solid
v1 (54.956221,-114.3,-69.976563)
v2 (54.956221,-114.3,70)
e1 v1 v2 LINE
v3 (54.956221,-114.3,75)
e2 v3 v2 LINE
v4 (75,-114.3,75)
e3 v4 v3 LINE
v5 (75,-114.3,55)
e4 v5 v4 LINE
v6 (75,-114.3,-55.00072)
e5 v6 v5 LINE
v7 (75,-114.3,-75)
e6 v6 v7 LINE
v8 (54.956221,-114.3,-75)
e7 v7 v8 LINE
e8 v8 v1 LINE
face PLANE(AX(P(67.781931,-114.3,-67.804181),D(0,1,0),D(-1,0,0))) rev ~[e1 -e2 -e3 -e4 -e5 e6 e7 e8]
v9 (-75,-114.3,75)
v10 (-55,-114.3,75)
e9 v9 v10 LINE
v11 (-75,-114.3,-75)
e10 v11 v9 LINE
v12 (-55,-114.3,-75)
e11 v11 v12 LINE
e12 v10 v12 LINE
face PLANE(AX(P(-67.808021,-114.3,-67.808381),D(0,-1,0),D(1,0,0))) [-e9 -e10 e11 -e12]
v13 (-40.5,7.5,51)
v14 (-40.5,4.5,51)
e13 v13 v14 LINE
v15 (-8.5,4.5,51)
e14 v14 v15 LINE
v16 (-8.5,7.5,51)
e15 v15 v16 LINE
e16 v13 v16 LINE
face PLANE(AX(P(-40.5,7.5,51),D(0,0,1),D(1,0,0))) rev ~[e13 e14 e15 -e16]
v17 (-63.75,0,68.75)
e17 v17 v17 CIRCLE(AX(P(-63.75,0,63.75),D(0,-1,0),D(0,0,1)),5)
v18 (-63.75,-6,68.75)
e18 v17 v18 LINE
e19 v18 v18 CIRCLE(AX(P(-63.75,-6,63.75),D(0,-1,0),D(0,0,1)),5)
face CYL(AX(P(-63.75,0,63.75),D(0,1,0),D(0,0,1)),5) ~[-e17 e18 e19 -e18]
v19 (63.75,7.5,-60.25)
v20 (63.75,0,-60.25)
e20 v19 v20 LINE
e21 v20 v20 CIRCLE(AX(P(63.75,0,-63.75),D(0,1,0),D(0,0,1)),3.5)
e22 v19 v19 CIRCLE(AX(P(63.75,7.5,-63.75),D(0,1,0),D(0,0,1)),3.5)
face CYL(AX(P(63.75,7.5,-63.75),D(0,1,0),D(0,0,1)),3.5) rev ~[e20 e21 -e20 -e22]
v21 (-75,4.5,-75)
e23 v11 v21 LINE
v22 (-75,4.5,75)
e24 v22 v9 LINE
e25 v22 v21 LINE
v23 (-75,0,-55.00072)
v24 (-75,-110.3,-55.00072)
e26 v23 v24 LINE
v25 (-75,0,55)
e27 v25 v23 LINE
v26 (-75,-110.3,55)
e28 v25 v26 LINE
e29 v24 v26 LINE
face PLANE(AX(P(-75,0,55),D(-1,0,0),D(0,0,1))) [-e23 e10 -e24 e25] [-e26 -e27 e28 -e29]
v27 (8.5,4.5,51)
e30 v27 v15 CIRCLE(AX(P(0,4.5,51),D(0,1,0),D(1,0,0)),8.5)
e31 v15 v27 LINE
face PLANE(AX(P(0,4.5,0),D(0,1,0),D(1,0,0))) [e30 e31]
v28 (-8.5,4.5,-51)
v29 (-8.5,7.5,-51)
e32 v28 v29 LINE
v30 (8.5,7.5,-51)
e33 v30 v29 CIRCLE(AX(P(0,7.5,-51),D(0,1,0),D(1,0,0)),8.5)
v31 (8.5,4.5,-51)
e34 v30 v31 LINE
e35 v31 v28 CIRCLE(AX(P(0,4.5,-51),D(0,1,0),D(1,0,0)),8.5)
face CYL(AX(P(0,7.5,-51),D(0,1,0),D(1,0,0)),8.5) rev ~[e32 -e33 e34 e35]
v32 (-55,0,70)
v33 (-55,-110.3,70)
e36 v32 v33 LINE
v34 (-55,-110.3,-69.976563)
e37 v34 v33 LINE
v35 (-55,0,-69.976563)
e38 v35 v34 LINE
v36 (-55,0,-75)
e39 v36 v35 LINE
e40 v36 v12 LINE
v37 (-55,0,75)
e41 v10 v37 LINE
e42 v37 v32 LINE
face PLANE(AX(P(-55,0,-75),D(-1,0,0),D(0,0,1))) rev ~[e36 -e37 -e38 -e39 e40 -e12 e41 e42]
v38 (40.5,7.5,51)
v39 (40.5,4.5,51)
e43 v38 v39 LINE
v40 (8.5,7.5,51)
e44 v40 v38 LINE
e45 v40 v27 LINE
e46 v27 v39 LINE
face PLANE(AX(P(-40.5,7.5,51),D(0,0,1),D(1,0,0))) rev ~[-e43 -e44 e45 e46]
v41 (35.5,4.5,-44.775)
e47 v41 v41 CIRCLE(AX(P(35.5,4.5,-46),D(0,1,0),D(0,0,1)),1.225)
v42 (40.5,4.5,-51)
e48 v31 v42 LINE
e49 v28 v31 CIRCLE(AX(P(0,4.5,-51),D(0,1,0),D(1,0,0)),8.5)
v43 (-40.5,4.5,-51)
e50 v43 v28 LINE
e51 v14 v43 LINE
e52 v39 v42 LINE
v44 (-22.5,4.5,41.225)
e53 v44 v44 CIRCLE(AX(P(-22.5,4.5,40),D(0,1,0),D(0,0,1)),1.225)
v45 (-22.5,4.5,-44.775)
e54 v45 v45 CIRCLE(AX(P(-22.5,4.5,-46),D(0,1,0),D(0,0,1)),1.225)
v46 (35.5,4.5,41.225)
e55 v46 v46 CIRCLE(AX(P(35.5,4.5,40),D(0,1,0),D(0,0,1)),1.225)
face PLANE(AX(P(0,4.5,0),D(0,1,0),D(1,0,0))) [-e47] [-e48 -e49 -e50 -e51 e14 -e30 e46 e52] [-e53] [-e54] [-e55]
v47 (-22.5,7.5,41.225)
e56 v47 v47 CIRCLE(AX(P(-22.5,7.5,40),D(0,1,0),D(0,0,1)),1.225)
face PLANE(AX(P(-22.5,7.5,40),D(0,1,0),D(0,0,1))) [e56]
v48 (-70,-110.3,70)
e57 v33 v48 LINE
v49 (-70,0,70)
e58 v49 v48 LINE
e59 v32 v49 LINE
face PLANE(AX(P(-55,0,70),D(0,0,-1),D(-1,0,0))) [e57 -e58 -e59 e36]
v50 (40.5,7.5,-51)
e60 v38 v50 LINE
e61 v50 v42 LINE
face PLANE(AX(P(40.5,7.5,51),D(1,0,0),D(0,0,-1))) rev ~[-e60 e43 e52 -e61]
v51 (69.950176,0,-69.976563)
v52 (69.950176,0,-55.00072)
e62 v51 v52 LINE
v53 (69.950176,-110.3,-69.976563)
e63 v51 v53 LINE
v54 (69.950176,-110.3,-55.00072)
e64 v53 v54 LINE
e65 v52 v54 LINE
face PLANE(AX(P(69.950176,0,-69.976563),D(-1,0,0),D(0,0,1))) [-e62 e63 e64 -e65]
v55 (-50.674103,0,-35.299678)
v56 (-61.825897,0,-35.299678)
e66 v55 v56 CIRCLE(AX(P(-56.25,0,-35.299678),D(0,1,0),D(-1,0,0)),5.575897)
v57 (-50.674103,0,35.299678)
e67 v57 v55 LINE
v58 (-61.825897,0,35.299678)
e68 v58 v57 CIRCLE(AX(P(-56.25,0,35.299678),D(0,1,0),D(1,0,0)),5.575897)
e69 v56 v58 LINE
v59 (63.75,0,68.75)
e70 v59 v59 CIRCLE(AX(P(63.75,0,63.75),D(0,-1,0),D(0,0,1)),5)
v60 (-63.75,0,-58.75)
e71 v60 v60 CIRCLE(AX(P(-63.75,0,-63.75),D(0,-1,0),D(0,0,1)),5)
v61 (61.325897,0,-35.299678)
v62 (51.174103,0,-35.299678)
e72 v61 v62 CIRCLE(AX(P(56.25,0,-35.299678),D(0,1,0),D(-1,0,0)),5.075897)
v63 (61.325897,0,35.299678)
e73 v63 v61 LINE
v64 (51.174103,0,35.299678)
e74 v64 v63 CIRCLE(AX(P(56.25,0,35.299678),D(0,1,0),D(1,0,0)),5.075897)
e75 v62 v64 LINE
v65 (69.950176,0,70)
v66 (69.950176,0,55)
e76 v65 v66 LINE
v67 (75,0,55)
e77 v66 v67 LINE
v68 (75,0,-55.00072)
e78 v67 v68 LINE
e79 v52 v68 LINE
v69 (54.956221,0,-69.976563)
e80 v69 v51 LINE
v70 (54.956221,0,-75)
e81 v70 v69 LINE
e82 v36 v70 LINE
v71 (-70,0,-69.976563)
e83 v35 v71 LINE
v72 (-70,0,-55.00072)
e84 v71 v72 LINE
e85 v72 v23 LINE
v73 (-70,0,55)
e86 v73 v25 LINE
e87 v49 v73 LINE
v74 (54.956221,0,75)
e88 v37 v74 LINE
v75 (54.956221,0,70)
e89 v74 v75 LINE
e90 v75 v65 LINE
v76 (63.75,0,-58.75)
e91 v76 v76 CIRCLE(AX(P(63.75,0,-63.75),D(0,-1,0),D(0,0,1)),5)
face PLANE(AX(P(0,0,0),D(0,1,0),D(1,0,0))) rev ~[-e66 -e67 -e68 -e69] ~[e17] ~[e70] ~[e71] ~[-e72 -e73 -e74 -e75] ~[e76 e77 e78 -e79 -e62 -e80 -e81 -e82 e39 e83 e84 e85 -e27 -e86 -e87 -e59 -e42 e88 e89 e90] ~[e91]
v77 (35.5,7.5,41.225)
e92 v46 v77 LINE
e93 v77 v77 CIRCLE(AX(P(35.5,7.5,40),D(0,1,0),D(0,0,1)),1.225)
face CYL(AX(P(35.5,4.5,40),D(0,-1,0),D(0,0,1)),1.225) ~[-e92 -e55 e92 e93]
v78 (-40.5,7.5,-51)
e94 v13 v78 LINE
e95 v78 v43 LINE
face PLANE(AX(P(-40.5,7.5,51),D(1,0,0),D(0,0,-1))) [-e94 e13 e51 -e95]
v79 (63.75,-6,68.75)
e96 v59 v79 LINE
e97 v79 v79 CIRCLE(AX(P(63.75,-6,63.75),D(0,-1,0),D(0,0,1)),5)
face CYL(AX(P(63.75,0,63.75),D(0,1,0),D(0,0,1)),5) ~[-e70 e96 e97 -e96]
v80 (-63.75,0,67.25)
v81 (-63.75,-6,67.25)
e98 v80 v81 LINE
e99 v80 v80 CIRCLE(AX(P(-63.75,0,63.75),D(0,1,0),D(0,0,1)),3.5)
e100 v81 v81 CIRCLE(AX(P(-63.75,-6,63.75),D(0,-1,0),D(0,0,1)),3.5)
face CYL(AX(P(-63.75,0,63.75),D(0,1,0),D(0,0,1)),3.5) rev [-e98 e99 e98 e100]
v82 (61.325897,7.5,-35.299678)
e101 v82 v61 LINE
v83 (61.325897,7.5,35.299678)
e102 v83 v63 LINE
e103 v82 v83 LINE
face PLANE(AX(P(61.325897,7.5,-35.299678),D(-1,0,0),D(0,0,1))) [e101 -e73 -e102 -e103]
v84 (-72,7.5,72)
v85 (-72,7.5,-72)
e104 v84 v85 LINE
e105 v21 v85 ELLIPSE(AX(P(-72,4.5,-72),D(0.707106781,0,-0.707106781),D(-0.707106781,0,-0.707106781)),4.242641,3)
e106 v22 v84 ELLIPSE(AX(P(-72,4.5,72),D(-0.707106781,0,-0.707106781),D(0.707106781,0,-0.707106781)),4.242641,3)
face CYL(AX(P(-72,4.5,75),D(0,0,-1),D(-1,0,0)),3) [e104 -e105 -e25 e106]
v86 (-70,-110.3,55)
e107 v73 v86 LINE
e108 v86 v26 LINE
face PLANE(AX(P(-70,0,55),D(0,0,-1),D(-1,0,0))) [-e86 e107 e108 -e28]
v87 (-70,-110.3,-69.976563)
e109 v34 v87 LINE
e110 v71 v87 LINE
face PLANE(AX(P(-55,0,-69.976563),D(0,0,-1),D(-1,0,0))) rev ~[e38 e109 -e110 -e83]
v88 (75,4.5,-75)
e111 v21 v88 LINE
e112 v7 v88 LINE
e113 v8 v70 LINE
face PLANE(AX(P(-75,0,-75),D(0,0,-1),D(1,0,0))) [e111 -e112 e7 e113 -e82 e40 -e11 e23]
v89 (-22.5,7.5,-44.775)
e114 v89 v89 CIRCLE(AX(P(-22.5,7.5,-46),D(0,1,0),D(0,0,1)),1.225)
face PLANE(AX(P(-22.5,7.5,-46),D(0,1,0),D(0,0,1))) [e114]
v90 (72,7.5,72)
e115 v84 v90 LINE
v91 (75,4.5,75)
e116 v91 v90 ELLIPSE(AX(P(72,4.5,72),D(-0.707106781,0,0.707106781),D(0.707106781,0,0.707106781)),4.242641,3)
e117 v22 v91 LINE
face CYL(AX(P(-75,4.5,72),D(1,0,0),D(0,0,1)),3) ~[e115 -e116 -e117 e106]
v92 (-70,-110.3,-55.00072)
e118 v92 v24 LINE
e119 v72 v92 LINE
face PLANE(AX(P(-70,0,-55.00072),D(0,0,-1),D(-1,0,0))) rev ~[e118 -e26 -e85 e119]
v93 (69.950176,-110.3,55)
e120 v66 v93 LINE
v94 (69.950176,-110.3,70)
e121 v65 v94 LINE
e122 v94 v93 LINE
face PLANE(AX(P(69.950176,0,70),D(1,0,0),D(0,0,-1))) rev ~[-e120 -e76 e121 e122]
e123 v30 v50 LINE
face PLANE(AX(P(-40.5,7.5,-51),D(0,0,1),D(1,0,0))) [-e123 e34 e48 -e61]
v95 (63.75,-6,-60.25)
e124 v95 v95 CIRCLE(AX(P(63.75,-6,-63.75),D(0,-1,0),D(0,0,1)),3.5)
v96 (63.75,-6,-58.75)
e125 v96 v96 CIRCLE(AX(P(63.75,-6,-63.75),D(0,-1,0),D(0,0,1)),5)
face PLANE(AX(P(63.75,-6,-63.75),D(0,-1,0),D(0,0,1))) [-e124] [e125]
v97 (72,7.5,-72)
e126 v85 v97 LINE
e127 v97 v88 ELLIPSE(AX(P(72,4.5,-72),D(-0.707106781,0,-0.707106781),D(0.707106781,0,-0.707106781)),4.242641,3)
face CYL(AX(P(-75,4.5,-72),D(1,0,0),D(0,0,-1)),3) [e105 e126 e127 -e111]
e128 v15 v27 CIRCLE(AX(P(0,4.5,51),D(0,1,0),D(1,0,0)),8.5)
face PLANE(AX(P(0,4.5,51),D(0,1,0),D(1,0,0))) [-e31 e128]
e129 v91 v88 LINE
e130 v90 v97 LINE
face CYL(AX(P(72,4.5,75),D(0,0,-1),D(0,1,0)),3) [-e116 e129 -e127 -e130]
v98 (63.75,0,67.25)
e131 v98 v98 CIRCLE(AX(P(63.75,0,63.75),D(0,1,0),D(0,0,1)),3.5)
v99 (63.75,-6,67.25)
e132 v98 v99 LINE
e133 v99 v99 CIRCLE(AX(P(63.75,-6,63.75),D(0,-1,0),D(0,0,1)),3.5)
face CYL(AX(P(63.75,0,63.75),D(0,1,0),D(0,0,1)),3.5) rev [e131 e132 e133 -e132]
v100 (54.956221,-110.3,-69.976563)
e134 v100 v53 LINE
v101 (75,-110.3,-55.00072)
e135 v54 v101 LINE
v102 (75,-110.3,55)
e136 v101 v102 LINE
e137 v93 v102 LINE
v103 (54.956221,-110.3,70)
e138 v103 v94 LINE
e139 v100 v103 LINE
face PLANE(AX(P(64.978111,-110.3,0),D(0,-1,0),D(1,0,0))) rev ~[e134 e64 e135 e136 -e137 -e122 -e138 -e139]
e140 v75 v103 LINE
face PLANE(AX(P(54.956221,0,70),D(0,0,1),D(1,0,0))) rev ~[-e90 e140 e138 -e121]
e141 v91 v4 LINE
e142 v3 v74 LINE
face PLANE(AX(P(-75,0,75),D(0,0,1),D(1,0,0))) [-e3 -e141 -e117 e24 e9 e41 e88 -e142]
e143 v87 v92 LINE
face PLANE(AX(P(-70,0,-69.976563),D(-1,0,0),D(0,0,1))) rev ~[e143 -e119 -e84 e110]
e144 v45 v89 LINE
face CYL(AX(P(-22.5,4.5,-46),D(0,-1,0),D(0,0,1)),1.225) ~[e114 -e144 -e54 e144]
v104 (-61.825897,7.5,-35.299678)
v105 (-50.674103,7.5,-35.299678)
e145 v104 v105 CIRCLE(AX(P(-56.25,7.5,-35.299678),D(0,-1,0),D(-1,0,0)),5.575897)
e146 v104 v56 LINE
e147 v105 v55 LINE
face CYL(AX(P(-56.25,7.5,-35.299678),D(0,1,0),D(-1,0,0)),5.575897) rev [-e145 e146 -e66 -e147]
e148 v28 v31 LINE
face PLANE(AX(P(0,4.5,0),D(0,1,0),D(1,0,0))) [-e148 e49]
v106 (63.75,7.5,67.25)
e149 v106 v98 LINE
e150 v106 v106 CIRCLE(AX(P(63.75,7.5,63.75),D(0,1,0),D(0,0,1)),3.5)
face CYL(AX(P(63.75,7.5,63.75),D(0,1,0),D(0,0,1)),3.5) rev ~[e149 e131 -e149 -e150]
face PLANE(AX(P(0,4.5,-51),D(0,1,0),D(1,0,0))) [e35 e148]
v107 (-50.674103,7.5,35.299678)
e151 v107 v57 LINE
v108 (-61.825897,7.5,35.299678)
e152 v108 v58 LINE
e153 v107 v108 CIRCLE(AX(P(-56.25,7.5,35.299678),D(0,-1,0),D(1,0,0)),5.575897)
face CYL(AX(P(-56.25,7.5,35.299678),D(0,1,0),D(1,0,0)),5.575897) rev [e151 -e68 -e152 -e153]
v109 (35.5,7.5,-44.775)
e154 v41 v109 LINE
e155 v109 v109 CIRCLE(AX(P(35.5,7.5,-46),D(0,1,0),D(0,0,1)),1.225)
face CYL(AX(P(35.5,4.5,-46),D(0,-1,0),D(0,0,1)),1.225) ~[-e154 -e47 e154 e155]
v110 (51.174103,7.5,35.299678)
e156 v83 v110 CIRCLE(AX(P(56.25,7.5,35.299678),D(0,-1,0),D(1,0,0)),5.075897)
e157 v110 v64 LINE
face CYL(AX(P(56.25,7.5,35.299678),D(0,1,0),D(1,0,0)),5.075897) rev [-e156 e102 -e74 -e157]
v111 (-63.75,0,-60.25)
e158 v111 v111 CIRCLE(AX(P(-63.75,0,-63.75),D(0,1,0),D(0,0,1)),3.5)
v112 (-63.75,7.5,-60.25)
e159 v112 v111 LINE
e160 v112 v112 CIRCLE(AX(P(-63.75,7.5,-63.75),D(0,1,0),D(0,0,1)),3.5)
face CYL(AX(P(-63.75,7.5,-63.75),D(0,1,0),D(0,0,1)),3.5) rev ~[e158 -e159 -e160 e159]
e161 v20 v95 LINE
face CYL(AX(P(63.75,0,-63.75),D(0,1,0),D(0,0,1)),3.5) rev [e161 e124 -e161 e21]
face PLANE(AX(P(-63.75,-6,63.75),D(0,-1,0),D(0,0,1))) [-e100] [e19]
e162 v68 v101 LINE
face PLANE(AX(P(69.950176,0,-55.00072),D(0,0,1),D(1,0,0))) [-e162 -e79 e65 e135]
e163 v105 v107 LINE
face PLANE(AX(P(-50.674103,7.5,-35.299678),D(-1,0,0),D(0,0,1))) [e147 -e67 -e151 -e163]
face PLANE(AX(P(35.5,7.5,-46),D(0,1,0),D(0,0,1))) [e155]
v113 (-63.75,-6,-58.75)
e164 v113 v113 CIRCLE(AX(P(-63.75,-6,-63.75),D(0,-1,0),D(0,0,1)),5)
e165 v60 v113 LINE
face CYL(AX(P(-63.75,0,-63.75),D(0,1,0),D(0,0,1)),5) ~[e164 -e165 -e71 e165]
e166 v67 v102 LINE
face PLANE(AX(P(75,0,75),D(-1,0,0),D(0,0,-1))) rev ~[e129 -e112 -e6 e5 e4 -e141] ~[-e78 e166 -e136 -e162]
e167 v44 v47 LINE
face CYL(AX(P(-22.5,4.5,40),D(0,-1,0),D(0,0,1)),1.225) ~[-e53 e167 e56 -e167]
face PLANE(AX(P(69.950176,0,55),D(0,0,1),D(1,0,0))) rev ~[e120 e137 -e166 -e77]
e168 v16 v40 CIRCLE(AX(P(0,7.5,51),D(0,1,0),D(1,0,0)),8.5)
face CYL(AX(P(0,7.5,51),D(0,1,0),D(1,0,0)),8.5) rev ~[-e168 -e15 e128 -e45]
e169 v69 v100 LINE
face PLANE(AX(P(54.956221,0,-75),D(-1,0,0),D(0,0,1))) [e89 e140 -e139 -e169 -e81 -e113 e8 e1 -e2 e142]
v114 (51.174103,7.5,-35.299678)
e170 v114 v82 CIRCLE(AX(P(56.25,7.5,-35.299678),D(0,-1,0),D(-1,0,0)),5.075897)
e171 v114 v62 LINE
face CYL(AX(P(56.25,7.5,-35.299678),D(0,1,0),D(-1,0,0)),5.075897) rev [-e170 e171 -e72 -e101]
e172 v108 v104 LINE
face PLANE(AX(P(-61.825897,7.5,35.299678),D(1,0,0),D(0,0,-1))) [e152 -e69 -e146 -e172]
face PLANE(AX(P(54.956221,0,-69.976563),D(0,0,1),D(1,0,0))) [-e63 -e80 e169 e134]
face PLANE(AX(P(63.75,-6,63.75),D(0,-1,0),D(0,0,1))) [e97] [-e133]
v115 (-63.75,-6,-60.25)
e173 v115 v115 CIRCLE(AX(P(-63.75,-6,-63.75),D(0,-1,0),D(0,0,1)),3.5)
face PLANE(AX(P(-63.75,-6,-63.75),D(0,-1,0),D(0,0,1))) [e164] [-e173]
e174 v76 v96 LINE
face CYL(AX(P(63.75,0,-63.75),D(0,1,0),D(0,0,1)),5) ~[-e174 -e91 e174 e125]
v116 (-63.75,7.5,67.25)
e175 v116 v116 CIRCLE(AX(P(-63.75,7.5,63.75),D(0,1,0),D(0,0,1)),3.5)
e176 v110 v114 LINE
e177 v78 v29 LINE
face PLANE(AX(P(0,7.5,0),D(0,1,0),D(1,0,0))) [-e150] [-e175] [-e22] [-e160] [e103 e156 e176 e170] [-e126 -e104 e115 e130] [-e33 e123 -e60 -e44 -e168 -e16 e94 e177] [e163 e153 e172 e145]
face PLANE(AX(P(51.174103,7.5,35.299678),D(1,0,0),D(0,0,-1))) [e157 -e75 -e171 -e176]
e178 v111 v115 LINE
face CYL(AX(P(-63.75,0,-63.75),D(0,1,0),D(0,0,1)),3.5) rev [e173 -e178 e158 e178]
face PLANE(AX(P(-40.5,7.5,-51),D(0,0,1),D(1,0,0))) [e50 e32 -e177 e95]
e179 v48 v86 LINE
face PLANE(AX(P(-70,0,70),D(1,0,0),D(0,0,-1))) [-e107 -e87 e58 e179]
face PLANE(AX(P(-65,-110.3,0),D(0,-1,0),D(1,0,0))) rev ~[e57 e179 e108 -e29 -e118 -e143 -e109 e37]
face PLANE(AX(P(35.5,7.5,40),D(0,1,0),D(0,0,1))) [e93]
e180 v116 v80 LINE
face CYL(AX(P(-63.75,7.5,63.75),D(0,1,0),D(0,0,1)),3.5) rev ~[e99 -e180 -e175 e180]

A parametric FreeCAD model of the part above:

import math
import FreeCAD as App
import Part
import Sketcher


def edges_at(feature, points):
    """Names of the edges that pass closest to the given points."""
    edges = feature.Shape.Edges
    near = lambda p: min(range(len(edges)), key=lambda i: edges[i].distToShape(Part.Vertex(*p))[0])
    return sorted({f"Edge{near(p) + 1}" for p in points})

doc = App.newDocument("Part")
body = doc.addObject("PartDesign::Body", "Body")

# Sketch on XZ plane
sketch1 = body.newObject("Sketcher::SketchObject", "Sketch")
sketch1.AttachmentSupport = (doc.getObject("XZ_Plane"), [""])
sketch1.MapMode = "FlatFace"
sketch1.addGeometry(Part.LineSegment(App.Vector(-75, -75, 0), App.Vector(-75, 75, 0)), False)
sketch1.addGeometry(Part.LineSegment(App.Vector(-75, 75, 0), App.Vector(75, 75, 0)), False)
sketch1.addGeometry(Part.LineSegment(App.Vector(75, 75, 0), App.Vector(75, -75, 0)), False)
sketch1.addGeometry(Part.LineSegment(App.Vector(75, -75, 0), App.Vector(-75, -75, 0)), False)
sketch1.addConstraint(Sketcher.Constraint("Coincident", 0, 2, 1, 1))
sketch1.addConstraint(Sketcher.Constraint("Coincident", 1, 2, 2, 1))
sketch1.addConstraint(Sketcher.Constraint("Coincident", 2, 2, 3, 1))
sketch1.addConstraint(Sketcher.Constraint("Coincident", 3, 2, 0, 1))
sketch1.addConstraint(Sketcher.Constraint("Vertical", 0))
sketch1.addConstraint(Sketcher.Constraint("Horizontal", 1))
sketch1.addConstraint(Sketcher.Constraint("Vertical", 2))
sketch1.addConstraint(Sketcher.Constraint("Horizontal", 3))
sketch1.addConstraint(Sketcher.Constraint("Symmetric", 0, 2, 2, 2, -1, 1))
sketch1.addConstraint(Sketcher.Constraint("Equal", 3, 0))
sketch1.addConstraint(Sketcher.Constraint("DistanceX", 1, 1, 1, 2, 150.0))
pad1 = body.newObject("PartDesign::Pad", "Pad")
pad1.Profile = sketch1
pad1.Length = 7.5
pad1.Reversed = True

# Sketch on XZ plane
sketch2 = body.newObject("Sketcher::SketchObject", "Sketch001")
sketch2.AttachmentSupport = (doc.getObject("XZ_Plane"), [""])
sketch2.MapMode = "FlatFace"
sketch2.addGeometry(Part.LineSegment(App.Vector(-55, 75, 0), App.Vector(-75, 75, 0)), False)
sketch2.addGeometry(Part.LineSegment(App.Vector(-75, 75, 0), App.Vector(-75, 55, 0)), False)
sketch2.addGeometry(Part.LineSegment(App.Vector(-75, 55, 0), App.Vector(-70, 55, 0)), False)
sketch2.addGeometry(Part.LineSegment(App.Vector(-70, 55, 0), App.Vector(-70, 70, 0)), False)
sketch2.addGeometry(Part.LineSegment(App.Vector(-70, 70, 0), App.Vector(-55, 70, 0)), False)
sketch2.addGeometry(Part.LineSegment(App.Vector(-55, 70, 0), App.Vector(-55, 75, 0)), False)
sketch2.addGeometry(Part.LineSegment(App.Vector(75, 75, 0), App.Vector(54.956221, 75, 0)), False)
sketch2.addGeometry(Part.LineSegment(App.Vector(54.956221, 75, 0), App.Vector(54.956221, 70, 0)), False)
sketch2.addGeometry(Part.LineSegment(App.Vector(54.956221, 70, 0), App.Vector(69.950176, 70, 0)), False)
sketch2.addGeometry(Part.LineSegment(App.Vector(69.950176, 70, 0), App.Vector(69.950176, 55, 0)), False)
sketch2.addGeometry(Part.LineSegment(App.Vector(69.950176, 55, 0), App.Vector(75, 55, 0)), False)
sketch2.addGeometry(Part.LineSegment(App.Vector(75, 55, 0), App.Vector(75, 75, 0)), False)
sketch2.addGeometry(Part.LineSegment(App.Vector(-75, -75, 0), App.Vector(-55, -75, 0)), False)
sketch2.addGeometry(Part.LineSegment(App.Vector(-55, -75, 0), App.Vector(-55, -69.976563, 0)), False)
sketch2.addGeometry(Part.LineSegment(App.Vector(-55, -69.976563, 0), App.Vector(-70, -69.976563, 0)), False)
sketch2.addGeometry(Part.LineSegment(App.Vector(-70, -69.976563, 0), App.Vector(-70, -55.00072, 0)), False)
sketch2.addGeometry(Part.LineSegment(App.Vector(-70, -55.00072, 0), App.Vector(-75, -55.00072, 0)), False)
sketch2.addGeometry(Part.LineSegment(App.Vector(-75, -55.00072, 0), App.Vector(-75, -75, 0)), False)
sketch2.addGeometry(Part.LineSegment(App.Vector(54.956221, -75, 0), App.Vector(75, -75, 0)), False)
sketch2.addGeometry(Part.LineSegment(App.Vector(75, -75, 0), App.Vector(75, -55.00072, 0)), False)
sketch2.addGeometry(Part.LineSegment(App.Vector(75, -55.00072, 0), App.Vector(69.950176, -55.00072, 0)), False)
sketch2.addGeometry(Part.LineSegment(App.Vector(69.950176, -55.00072, 0), App.Vector(69.950176, -69.976563, 0)), False)
sketch2.addGeometry(Part.LineSegment(App.Vector(69.950176, -69.976563, 0), App.Vector(54.956221, -69.976563, 0)), False)
sketch2.addGeometry(Part.LineSegment(App.Vector(54.956221, -69.976563, 0), App.Vector(54.956221, -75, 0)), False)
sketch2.addConstraint(Sketcher.Constraint("Coincident", 0, 2, 1, 1))
sketch2.addConstraint(Sketcher.Constraint("Coincident", 1, 2, 2, 1))
sketch2.addConstraint(Sketcher.Constraint("Coincident", 2, 2, 3, 1))
sketch2.addConstraint(Sketcher.Constraint("Coincident", 3, 2, 4, 1))
sketch2.addConstraint(Sketcher.Constraint("Coincident", 4, 2, 5, 1))
sketch2.addConstraint(Sketcher.Constraint("Coincident", 5, 2, 0, 1))
sketch2.addConstraint(Sketcher.Constraint("Coincident", 6, 2, 7, 1))
sketch2.addConstraint(Sketcher.Constraint("Coincident", 7, 2, 8, 1))
sketch2.addConstraint(Sketcher.Constraint("Coincident", 8, 2, 9, 1))
sketch2.addConstraint(Sketcher.Constraint("Coincident", 9, 2, 10, 1))
sketch2.addConstraint(Sketcher.Constraint("Coincident", 10, 2, 11, 1))
sketch2.addConstraint(Sketcher.Constraint("Coincident", 11, 2, 6, 1))
sketch2.addConstraint(Sketcher.Constraint("Coincident", 12, 2, 13, 1))
sketch2.addConstraint(Sketcher.Constraint("Coincident", 13, 2, 14, 1))
sketch2.addConstraint(Sketcher.Constraint("Coincident", 14, 2, 15, 1))
sketch2.addConstraint(Sketcher.Constraint("Coincident", 15, 2, 16, 1))
sketch2.addConstraint(Sketcher.Constraint("Coincident", 16, 2, 17, 1))
sketch2.addConstraint(Sketcher.Constraint("Coincident", 17, 2, 12, 1))
sketch2.addConstraint(Sketcher.Constraint("Coincident", 18, 2, 19, 1))
sketch2.addConstraint(Sketcher.Constraint("Coincident", 19, 2, 20, 1))
sketch2.addConstraint(Sketcher.Constraint("Coincident", 20, 2, 21, 1))
sketch2.addConstraint(Sketcher.Constraint("Coincident", 21, 2, 22, 1))
sketch2.addConstraint(Sketcher.Constraint("Coincident", 22, 2, 23, 1))
sketch2.addConstraint(Sketcher.Constraint("Coincident", 23, 2, 18, 1))
sketch2.addConstraint(Sketcher.Constraint("Horizontal", 0))
sketch2.addConstraint(Sketcher.Constraint("Vertical", 1))
sketch2.addConstraint(Sketcher.Constraint("Horizontal", 2))
sketch2.addConstraint(Sketcher.Constraint("Vertical", 3))
sketch2.addConstraint(Sketcher.Constraint("Horizontal", 4))
sketch2.addConstraint(Sketcher.Constraint("Vertical", 5))
sketch2.addConstraint(Sketcher.Constraint("Horizontal", 6))
sketch2.addConstraint(Sketcher.Constraint("Vertical", 7))
sketch2.addConstraint(Sketcher.Constraint("Horizontal", 8))
sketch2.addConstraint(Sketcher.Constraint("Vertical", 9))
sketch2.addConstraint(Sketcher.Constraint("Horizontal", 10))
sketch2.addConstraint(Sketcher.Constraint("Vertical", 11))
sketch2.addConstraint(Sketcher.Constraint("Horizontal", 12))
sketch2.addConstraint(Sketcher.Constraint("Vertical", 13))
sketch2.addConstraint(Sketcher.Constraint("Horizontal", 14))
sketch2.addConstraint(Sketcher.Constraint("Vertical", 15))
sketch2.addConstraint(Sketcher.Constraint("Horizontal", 16))
sketch2.addConstraint(Sketcher.Constraint("Vertical", 17))
sketch2.addConstraint(Sketcher.Constraint("Horizontal", 18))
sketch2.addConstraint(Sketcher.Constraint("Vertical", 19))
sketch2.addConstraint(Sketcher.Constraint("Horizontal", 20))
sketch2.addConstraint(Sketcher.Constraint("Vertical", 21))
sketch2.addConstraint(Sketcher.Constraint("Horizontal", 22))
sketch2.addConstraint(Sketcher.Constraint("Vertical", 23))
sketch2.addConstraint(Sketcher.Constraint("Symmetric", 11, 2, 17, 2, -1, 1))
sketch2.addConstraint(Sketcher.Constraint("Symmetric", 0, 2, 18, 2, -1, 1))
sketch2.addConstraint(Sketcher.Constraint("Symmetric", 1, 2, 10, 2, -2))
sketch2.addConstraint(Sketcher.Constraint("Symmetric", 5, 2, 12, 2, -1))
sketch2.addConstraint(Sketcher.Constraint("Horizontal", 4, 2, 7, 2))
sketch2.addConstraint(Sketcher.Constraint("Horizontal", 16, 2, 19, 2))
sketch2.addConstraint(Sketcher.Constraint("Horizontal", 14, 2, 21, 2))
sketch2.addConstraint(Sketcher.Constraint("Vertical", 3, 2, 14, 2))
sketch2.addConstraint(Sketcher.Constraint("Vertical", 9, 2, 20, 2))
sketch2.addConstraint(Sketcher.Constraint("Vertical", 7, 2, 22, 2))
sketch2.addConstraint(Sketcher.Constraint("Equal", 12, 1))
sketch2.addConstraint(Sketcher.Constraint("Equal", 14, 3))
sketch2.addConstraint(Sketcher.Constraint("DistanceX", 0, 2, 0, 1, 20.0))
sketch2.addConstraint(Sketcher.Constraint("DistanceX", 2, 1, 2, 2, 5.0))
sketch2.addConstraint(Sketcher.Constraint("DistanceX", 0, 2, -1, 1, 75.0))
sketch2.addConstraint(Sketcher.Constraint("DistanceY", -1, 1, 0, 2, 75.0))
sketch2.addConstraint(Sketcher.Constraint("DistanceX", 6, 2, 6, 1, 20.043779))
sketch2.addConstraint(Sketcher.Constraint("DistanceY", 17, 2, 17, 1, 19.99928))
sketch2.addConstraint(Sketcher.Constraint("DistanceX", 8, 1, 8, 2, 14.993954))
sketch2.addConstraint(Sketcher.Constraint("DistanceY", 13, 1, 13, 2, 5.023437))
pad2 = body.newObject("PartDesign::Pad", "Pad001")
pad2.Profile = sketch2
pad2.Length = 114.3
doc.recompute()

fillet = body.newObject("PartDesign::Fillet", "Fillet")
fillet.Base = (pad2, edges_at(pad2, [
    (-75, 7.5, 0),
    (0, 7.5, 75),
    (75, 7.5, 0),
    (0, 7.5, -75),
]))
fillet.Radius = 3

# Sketch on XZ plane
sketch3 = body.newObject("Sketcher::SketchObject", "Sketch002")
sketch3.AttachmentSupport = (doc.getObject("XZ_Plane"), [""])
sketch3.MapMode = "FlatFace"
sketch3.AttachmentOffset = App.Placement(App.Vector(0, 0, 114.3), App.Rotation())
sketch3.addGeometry(Part.LineSegment(App.Vector(54.956221, 75, 0), App.Vector(54.956221, -75, 0)), False)
sketch3.addGeometry(Part.LineSegment(App.Vector(54.956221, -75, 0), App.Vector(75, -75, 0)), False)
sketch3.addGeometry(Part.LineSegment(App.Vector(75, -75, 0), App.Vector(75, 75, 0)), False)
sketch3.addGeometry(Part.LineSegment(App.Vector(75, 75, 0), App.Vector(54.956221, 75, 0)), False)
sketch3.addGeometry(Part.LineSegment(App.Vector(-75, 75, 0), App.Vector(-75, -75, 0)), False)
sketch3.addGeometry(Part.LineSegment(App.Vector(-75, -75, 0), App.Vector(-55, -75, 0)), False)
sketch3.addGeometry(Part.LineSegment(App.Vector(-55, -75, 0), App.Vector(-55, 75, 0)), False)
sketch3.addGeometry(Part.LineSegment(App.Vector(-55, 75, 0), App.Vector(-75, 75, 0)), False)
sketch3.addConstraint(Sketcher.Constraint("Coincident", 0, 2, 1, 1))
sketch3.addConstraint(Sketcher.Constraint("Coincident", 1, 2, 2, 1))
sketch3.addConstraint(Sketcher.Constraint("Coincident", 2, 2, 3, 1))
sketch3.addConstraint(Sketcher.Constraint("Coincident", 3, 2, 0, 1))
sketch3.addConstraint(Sketcher.Constraint("Coincident", 4, 2, 5, 1))
sketch3.addConstraint(Sketcher.Constraint("Coincident", 5, 2, 6, 1))
sketch3.addConstraint(Sketcher.Constraint("Coincident", 6, 2, 7, 1))
sketch3.addConstraint(Sketcher.Constraint("Coincident", 7, 2, 4, 1))
sketch3.addConstraint(Sketcher.Constraint("Vertical", 0))
sketch3.addConstraint(Sketcher.Constraint("Horizontal", 1))
sketch3.addConstraint(Sketcher.Constraint("Vertical", 2))
sketch3.addConstraint(Sketcher.Constraint("Horizontal", 3))
sketch3.addConstraint(Sketcher.Constraint("Vertical", 4))
sketch3.addConstraint(Sketcher.Constraint("Horizontal", 5))
sketch3.addConstraint(Sketcher.Constraint("Vertical", 6))
sketch3.addConstraint(Sketcher.Constraint("Horizontal", 7))
sketch3.addConstraint(Sketcher.Constraint("Symmetric", 2, 2, 4, 2, -1, 1))
sketch3.addConstraint(Sketcher.Constraint("Horizontal", 1, 2, 4, 2))
sketch3.addConstraint(Sketcher.Constraint("Horizontal", 3, 2, 6, 2))
sketch3.addConstraint(Sketcher.Constraint("DistanceX", 5, 1, 5, 2, 20.0))
sketch3.addConstraint(Sketcher.Constraint("DistanceY", 0, 2, 0, 1, 150.0))
sketch3.addConstraint(Sketcher.Constraint("DistanceX", -1, 1, 1, 2, 75.0))
sketch3.addConstraint(Sketcher.Constraint("DistanceX", 1, 1, 1, 2, 20.043779))
pad3 = body.newObject("PartDesign::Pad", "Pad002")
pad3.Profile = sketch3
pad3.Length = 4
pad3.Reversed = True

# Sketch on XZ plane
sketch4 = body.newObject("Sketcher::SketchObject", "Sketch003")
sketch4.AttachmentSupport = (doc.getObject("XZ_Plane"), [""])
sketch4.MapMode = "FlatFace"
sketch4.AttachmentOffset = App.Placement(App.Vector(0, 0, -7.5), App.Rotation())
sketch4.addGeometry(Part.LineSegment(App.Vector(-40.5, -51, 0), App.Vector(-40.5, 51, 0)), False)
sketch4.addGeometry(Part.LineSegment(App.Vector(-40.5, 51, 0), App.Vector(40.5, 51, 0)), False)
sketch4.addGeometry(Part.LineSegment(App.Vector(40.5, 51, 0), App.Vector(40.5, -51, 0)), False)
sketch4.addGeometry(Part.LineSegment(App.Vector(40.5, -51, 0), App.Vector(-40.5, -51, 0)), False)
sketch4.addConstraint(Sketcher.Constraint("Coincident", 0, 2, 1, 1))
sketch4.addConstraint(Sketcher.Constraint("Coincident", 1, 2, 2, 1))
sketch4.addConstraint(Sketcher.Constraint("Coincident", 2, 2, 3, 1))
sketch4.addConstraint(Sketcher.Constraint("Coincident", 3, 2, 0, 1))
sketch4.addConstraint(Sketcher.Constraint("Vertical", 0))
sketch4.addConstraint(Sketcher.Constraint("Horizontal", 1))
sketch4.addConstraint(Sketcher.Constraint("Vertical", 2))
sketch4.addConstraint(Sketcher.Constraint("Horizontal", 3))
sketch4.addConstraint(Sketcher.Constraint("Symmetric", 0, 2, 2, 2, -1, 1))
sketch4.addConstraint(Sketcher.Constraint("DistanceX", 1, 1, 1, 2, 81.0))
sketch4.addConstraint(Sketcher.Constraint("DistanceY", 0, 1, 0, 2, 102.0))
pocket1 = body.newObject("PartDesign::Pocket", "Pocket")
pocket1.Profile = sketch4
pocket1.Length = 3
pocket1.Reversed = True

# Sketch on XZ plane
sketch5 = body.newObject("Sketcher::SketchObject", "Sketch004")
sketch5.AttachmentSupport = (doc.getObject("XZ_Plane"), [""])
sketch5.MapMode = "FlatFace"
sketch5.AttachmentOffset = App.Placement(App.Vector(0, 0, -7.5), App.Rotation())
sketch5.addGeometry(Part.LineSegment(App.Vector(-50.674103, 35.299678, 0), App.Vector(-50.674103, -35.299678, 0)), False)
sketch5.addGeometry(Part.ArcOfCircle(Part.Circle(App.Vector(-56.25, -35.299678, 0), App.Vector(0, 0, 1), 5.575897), math.radians(180), math.radians(360)), False)
sketch5.addGeometry(Part.LineSegment(App.Vector(-61.825897, -35.299678, 0), App.Vector(-61.825897, 35.299678, 0)), False)
sketch5.addGeometry(Part.ArcOfCircle(Part.Circle(App.Vector(-56.25, 35.299678, 0), App.Vector(0, 0, 1), 5.575897), math.radians(0), math.radians(180)), False)
sketch5.addConstraint(Sketcher.Constraint("Tangent", 0, 2, 1, 2))
sketch5.addConstraint(Sketcher.Constraint("Tangent", 1, 1, 2, 1))
sketch5.addConstraint(Sketcher.Constraint("Tangent", 2, 2, 3, 2))
sketch5.addConstraint(Sketcher.Constraint("Tangent", 3, 1, 0, 1))
sketch5.addConstraint(Sketcher.Constraint("Vertical", 0))
sketch5.addConstraint(Sketcher.Constraint("Vertical", 2))
sketch5.addConstraint(Sketcher.Constraint("DistanceX", 1, 3, -1, 1, 56.25))
sketch5.addConstraint(Sketcher.Constraint("Radius", 1, 5.575897))
sketch5.addConstraint(Sketcher.Constraint("DistanceY", 0, 2, 0, 1, 70.599357))
sketch5.addConstraint(Sketcher.Constraint("DistanceY", 1, 3, -1, 1, 35.299678))
pocket2 = body.newObject("PartDesign::Pocket", "Pocket001")
pocket2.Profile = sketch5
pocket2.Type = "UpToFirst"
pocket2.Reversed = True

# Sketch on XZ plane
sketch6 = body.newObject("Sketcher::SketchObject", "Sketch005")
sketch6.AttachmentSupport = (doc.getObject("XZ_Plane"), [""])
sketch6.MapMode = "FlatFace"
sketch6.AttachmentOffset = App.Placement(App.Vector(0, 0, -7.5), App.Rotation())
sketch6.addGeometry(Part.LineSegment(App.Vector(61.325897, 35.299678, 0), App.Vector(61.325897, -35.299678, 0)), False)
sketch6.addGeometry(Part.ArcOfCircle(Part.Circle(App.Vector(56.25, -35.299678, 0), App.Vector(0, 0, 1), 5.075897), math.radians(180), math.radians(360)), False)
sketch6.addGeometry(Part.LineSegment(App.Vector(51.174103, -35.299678, 0), App.Vector(51.174103, 35.299678, 0)), False)
sketch6.addGeometry(Part.ArcOfCircle(Part.Circle(App.Vector(56.25, 35.299678, 0), App.Vector(0, 0, 1), 5.075897), math.radians(0), math.radians(180)), False)
sketch6.addConstraint(Sketcher.Constraint("Tangent", 0, 2, 1, 2))
sketch6.addConstraint(Sketcher.Constraint("Tangent", 1, 1, 2, 1))
sketch6.addConstraint(Sketcher.Constraint("Tangent", 2, 2, 3, 2))
sketch6.addConstraint(Sketcher.Constraint("Tangent", 3, 1, 0, 1))
sketch6.addConstraint(Sketcher.Constraint("Vertical", 0))
sketch6.addConstraint(Sketcher.Constraint("Vertical", 2))
sketch6.addConstraint(Sketcher.Constraint("DistanceX", -1, 1, 1, 3, 56.25))
sketch6.addConstraint(Sketcher.Constraint("Radius", 1, 5.075897))
sketch6.addConstraint(Sketcher.Constraint("DistanceY", 0, 2, 0, 1, 70.599357))
sketch6.addConstraint(Sketcher.Constraint("DistanceY", 1, 3, -1, 1, 35.299678))
pocket3 = body.newObject("PartDesign::Pocket", "Pocket002")
pocket3.Profile = sketch6
pocket3.Type = "UpToFirst"
pocket3.Reversed = True

# Sketch on XZ plane
sketch7 = body.newObject("Sketcher::SketchObject", "Sketch006")
sketch7.AttachmentSupport = (doc.getObject("XZ_Plane"), [""])
sketch7.MapMode = "FlatFace"
sketch7.AttachmentOffset = App.Placement(App.Vector(0, 0, -4.5), App.Rotation())
sketch7.addGeometry(Part.Circle(App.Vector(35.5, -46, 0), App.Vector(0, 0, 1), 1.225), False)
sketch7.addGeometry(Part.Circle(App.Vector(-22.5, -46, 0), App.Vector(0, 0, 1), 1.225), False)
sketch7.addGeometry(Part.Circle(App.Vector(-22.5, 40, 0), App.Vector(0, 0, 1), 1.225), False)
sketch7.addGeometry(Part.Circle(App.Vector(35.5, 40, 0), App.Vector(0, 0, 1), 1.225), False)
sketch7.addConstraint(Sketcher.Constraint("Equal", 0, 1))
sketch7.addConstraint(Sketcher.Constraint("Equal", 1, 2))
sketch7.addConstraint(Sketcher.Constraint("Equal", 2, 3))
sketch7.addConstraint(Sketcher.Constraint("Horizontal", 0, 3, 1, 3))
sketch7.addConstraint(Sketcher.Constraint("Horizontal", 2, 3, 3, 3))
sketch7.addConstraint(Sketcher.Constraint("Vertical", 1, 3, 2, 3))
sketch7.addConstraint(Sketcher.Constraint("Vertical", 0, 3, 3, 3))
sketch7.addConstraint(Sketcher.Constraint("Diameter", 0, 2.45))
sketch7.addConstraint(Sketcher.Constraint("DistanceY", 0, 3, -1, 1, 46.0))
sketch7.addConstraint(Sketcher.Constraint("DistanceY", -1, 1, 2, 3, 40.0))
sketch7.addConstraint(Sketcher.Constraint("DistanceX", 1, 3, 0, 3, 58.0))
sketch7.addConstraint(Sketcher.Constraint("DistanceX", -1, 1, 0, 3, 35.5))
pad4 = body.newObject("PartDesign::Pad", "Pad003")
pad4.Profile = sketch7
pad4.Length = 3
pad4.Reversed = True

# Sketch on XZ plane
sketch8 = body.newObject("Sketcher::SketchObject", "Sketch007")
sketch8.AttachmentSupport = (doc.getObject("XZ_Plane"), [""])
sketch8.MapMode = "FlatFace"
sketch8.AttachmentOffset = App.Placement(App.Vector(0, 0, -7.5), App.Rotation())
sketch8.addGeometry(Part.Circle(App.Vector(-63.75, 63.75, 0), App.Vector(0, 0, 1), 3.5), False)
sketch8.addGeometry(Part.Circle(App.Vector(63.75, 63.75, 0), App.Vector(0, 0, 1), 3.5), False)
sketch8.addGeometry(Part.Circle(App.Vector(-63.75, -63.75, 0), App.Vector(0, 0, 1), 3.5), False)
sketch8.addGeometry(Part.Circle(App.Vector(63.75, -63.75, 0), App.Vector(0, 0, 1), 3.5), False)
sketch8.addConstraint(Sketcher.Constraint("Equal", 0, 1))
sketch8.addConstraint(Sketcher.Constraint("Equal", 1, 2))
sketch8.addConstraint(Sketcher.Constraint("Equal", 2, 3))
sketch8.addConstraint(Sketcher.Constraint("Symmetric", 1, 3, 2, 3, -1, 1))
sketch8.addConstraint(Sketcher.Constraint("Symmetric", 0, 3, 3, 3, -1, 1))
sketch8.addConstraint(Sketcher.Constraint("Symmetric", 0, 3, 1, 3, -2))
sketch8.addConstraint(Sketcher.Constraint("Diameter", 0, 7.0))
sketch8.addConstraint(Sketcher.Constraint("DistanceX", 0, 3, 1, 3, 127.5))
sketch8.addConstraint(Sketcher.Constraint("DistanceY", 2, 3, 0, 3, 127.5))
pocket4 = body.newObject("PartDesign::Pocket", "Pocket003")
pocket4.Profile = sketch8
pocket4.Length = 7.5
pocket4.Reversed = True

# Sketch on XZ plane
sketch9 = body.newObject("Sketcher::SketchObject", "Sketch008")
sketch9.AttachmentSupport = (doc.getObject("XZ_Plane"), [""])
sketch9.MapMode = "FlatFace"
sketch9.addGeometry(Part.Circle(App.Vector(-63.75, 63.75, 0), App.Vector(0, 0, 1), 5), False)
sketch9.addGeometry(Part.Circle(App.Vector(-63.75, 63.75, 0), App.Vector(0, 0, 1), 3.5), False)
sketch9.addGeometry(Part.Circle(App.Vector(63.75, 63.75, 0), App.Vector(0, 0, 1), 5), False)
sketch9.addGeometry(Part.Circle(App.Vector(63.75, 63.75, 0), App.Vector(0, 0, 1), 3.5), False)
sketch9.addGeometry(Part.Circle(App.Vector(63.75, -63.75, 0), App.Vector(0, 0, 1), 5), False)
sketch9.addGeometry(Part.Circle(App.Vector(63.75, -63.75, 0), App.Vector(0, 0, 1), 3.5), False)
sketch9.addGeometry(Part.Circle(App.Vector(-63.75, -63.75, 0), App.Vector(0, 0, 1), 5), False)
sketch9.addGeometry(Part.Circle(App.Vector(-63.75, -63.75, 0), App.Vector(0, 0, 1), 3.5), False)
sketch9.addConstraint(Sketcher.Constraint("Coincident", 1, 3, 0, 3))
sketch9.addConstraint(Sketcher.Constraint("Coincident", 3, 3, 2, 3))
sketch9.addConstraint(Sketcher.Constraint("Coincident", 5, 3, 4, 3))
sketch9.addConstraint(Sketcher.Constraint("Coincident", 7, 3, 6, 3))
sketch9.addConstraint(Sketcher.Constraint("Equal", 0, 2))
sketch9.addConstraint(Sketcher.Constraint("Equal", 1, 3))
sketch9.addConstraint(Sketcher.Constraint("Equal", 2, 4))
sketch9.addConstraint(Sketcher.Constraint("Equal", 3, 5))
sketch9.addConstraint(Sketcher.Constraint("Equal", 4, 6))
sketch9.addConstraint(Sketcher.Constraint("Equal", 5, 7))
sketch9.addConstraint(Sketcher.Constraint("Symmetric", 0, 3, 4, 3, -1, 1))
sketch9.addConstraint(Sketcher.Constraint("Symmetric", 2, 3, 6, 3, -1, 1))
sketch9.addConstraint(Sketcher.Constraint("Symmetric", 0, 3, 2, 3, -2))
sketch9.addConstraint(Sketcher.Constraint("Diameter", 0, 10.0))
sketch9.addConstraint(Sketcher.Constraint("Diameter", 1, 7.0))
sketch9.addConstraint(Sketcher.Constraint("DistanceX", 0, 3, 2, 3, 127.5))
sketch9.addConstraint(Sketcher.Constraint("DistanceY", 4, 3, 2, 3, 127.5))
pad5 = body.newObject("PartDesign::Pad", "Pad004")
pad5.Profile = sketch9
pad5.Length = 6

# Sketch on XZ plane
sketch10 = body.newObject("Sketcher::SketchObject", "Sketch009")
sketch10.AttachmentSupport = (doc.getObject("XZ_Plane"), [""])
sketch10.MapMode = "FlatFace"
sketch10.AttachmentOffset = App.Placement(App.Vector(0, 0, -7.5), App.Rotation())
sketch10.addGeometry(Part.Circle(App.Vector(0, -51, 0), App.Vector(0, 0, 1), 8.5), False)
sketch10.addGeometry(Part.Circle(App.Vector(0, 51, 0), App.Vector(0, 0, 1), 8.5), False)
sketch10.addConstraint(Sketcher.Constraint("Equal", 0, 1))
sketch10.addConstraint(Sketcher.Constraint("Symmetric", 0, 3, 1, 3, -1, 1))
sketch10.addConstraint(Sketcher.Constraint("PointOnObject", 0, 3, -2))
sketch10.addConstraint(Sketcher.Constraint("Diameter", 0, 17.0))
sketch10.addConstraint(Sketcher.Constraint("DistanceY", 0, 3, -1, 1, 51.0))
pocket5 = body.newObject("PartDesign::Pocket", "Pocket004")
pocket5.Profile = sketch10
pocket5.Length = 3
pocket5.Reversed = True

doc.recompute()
